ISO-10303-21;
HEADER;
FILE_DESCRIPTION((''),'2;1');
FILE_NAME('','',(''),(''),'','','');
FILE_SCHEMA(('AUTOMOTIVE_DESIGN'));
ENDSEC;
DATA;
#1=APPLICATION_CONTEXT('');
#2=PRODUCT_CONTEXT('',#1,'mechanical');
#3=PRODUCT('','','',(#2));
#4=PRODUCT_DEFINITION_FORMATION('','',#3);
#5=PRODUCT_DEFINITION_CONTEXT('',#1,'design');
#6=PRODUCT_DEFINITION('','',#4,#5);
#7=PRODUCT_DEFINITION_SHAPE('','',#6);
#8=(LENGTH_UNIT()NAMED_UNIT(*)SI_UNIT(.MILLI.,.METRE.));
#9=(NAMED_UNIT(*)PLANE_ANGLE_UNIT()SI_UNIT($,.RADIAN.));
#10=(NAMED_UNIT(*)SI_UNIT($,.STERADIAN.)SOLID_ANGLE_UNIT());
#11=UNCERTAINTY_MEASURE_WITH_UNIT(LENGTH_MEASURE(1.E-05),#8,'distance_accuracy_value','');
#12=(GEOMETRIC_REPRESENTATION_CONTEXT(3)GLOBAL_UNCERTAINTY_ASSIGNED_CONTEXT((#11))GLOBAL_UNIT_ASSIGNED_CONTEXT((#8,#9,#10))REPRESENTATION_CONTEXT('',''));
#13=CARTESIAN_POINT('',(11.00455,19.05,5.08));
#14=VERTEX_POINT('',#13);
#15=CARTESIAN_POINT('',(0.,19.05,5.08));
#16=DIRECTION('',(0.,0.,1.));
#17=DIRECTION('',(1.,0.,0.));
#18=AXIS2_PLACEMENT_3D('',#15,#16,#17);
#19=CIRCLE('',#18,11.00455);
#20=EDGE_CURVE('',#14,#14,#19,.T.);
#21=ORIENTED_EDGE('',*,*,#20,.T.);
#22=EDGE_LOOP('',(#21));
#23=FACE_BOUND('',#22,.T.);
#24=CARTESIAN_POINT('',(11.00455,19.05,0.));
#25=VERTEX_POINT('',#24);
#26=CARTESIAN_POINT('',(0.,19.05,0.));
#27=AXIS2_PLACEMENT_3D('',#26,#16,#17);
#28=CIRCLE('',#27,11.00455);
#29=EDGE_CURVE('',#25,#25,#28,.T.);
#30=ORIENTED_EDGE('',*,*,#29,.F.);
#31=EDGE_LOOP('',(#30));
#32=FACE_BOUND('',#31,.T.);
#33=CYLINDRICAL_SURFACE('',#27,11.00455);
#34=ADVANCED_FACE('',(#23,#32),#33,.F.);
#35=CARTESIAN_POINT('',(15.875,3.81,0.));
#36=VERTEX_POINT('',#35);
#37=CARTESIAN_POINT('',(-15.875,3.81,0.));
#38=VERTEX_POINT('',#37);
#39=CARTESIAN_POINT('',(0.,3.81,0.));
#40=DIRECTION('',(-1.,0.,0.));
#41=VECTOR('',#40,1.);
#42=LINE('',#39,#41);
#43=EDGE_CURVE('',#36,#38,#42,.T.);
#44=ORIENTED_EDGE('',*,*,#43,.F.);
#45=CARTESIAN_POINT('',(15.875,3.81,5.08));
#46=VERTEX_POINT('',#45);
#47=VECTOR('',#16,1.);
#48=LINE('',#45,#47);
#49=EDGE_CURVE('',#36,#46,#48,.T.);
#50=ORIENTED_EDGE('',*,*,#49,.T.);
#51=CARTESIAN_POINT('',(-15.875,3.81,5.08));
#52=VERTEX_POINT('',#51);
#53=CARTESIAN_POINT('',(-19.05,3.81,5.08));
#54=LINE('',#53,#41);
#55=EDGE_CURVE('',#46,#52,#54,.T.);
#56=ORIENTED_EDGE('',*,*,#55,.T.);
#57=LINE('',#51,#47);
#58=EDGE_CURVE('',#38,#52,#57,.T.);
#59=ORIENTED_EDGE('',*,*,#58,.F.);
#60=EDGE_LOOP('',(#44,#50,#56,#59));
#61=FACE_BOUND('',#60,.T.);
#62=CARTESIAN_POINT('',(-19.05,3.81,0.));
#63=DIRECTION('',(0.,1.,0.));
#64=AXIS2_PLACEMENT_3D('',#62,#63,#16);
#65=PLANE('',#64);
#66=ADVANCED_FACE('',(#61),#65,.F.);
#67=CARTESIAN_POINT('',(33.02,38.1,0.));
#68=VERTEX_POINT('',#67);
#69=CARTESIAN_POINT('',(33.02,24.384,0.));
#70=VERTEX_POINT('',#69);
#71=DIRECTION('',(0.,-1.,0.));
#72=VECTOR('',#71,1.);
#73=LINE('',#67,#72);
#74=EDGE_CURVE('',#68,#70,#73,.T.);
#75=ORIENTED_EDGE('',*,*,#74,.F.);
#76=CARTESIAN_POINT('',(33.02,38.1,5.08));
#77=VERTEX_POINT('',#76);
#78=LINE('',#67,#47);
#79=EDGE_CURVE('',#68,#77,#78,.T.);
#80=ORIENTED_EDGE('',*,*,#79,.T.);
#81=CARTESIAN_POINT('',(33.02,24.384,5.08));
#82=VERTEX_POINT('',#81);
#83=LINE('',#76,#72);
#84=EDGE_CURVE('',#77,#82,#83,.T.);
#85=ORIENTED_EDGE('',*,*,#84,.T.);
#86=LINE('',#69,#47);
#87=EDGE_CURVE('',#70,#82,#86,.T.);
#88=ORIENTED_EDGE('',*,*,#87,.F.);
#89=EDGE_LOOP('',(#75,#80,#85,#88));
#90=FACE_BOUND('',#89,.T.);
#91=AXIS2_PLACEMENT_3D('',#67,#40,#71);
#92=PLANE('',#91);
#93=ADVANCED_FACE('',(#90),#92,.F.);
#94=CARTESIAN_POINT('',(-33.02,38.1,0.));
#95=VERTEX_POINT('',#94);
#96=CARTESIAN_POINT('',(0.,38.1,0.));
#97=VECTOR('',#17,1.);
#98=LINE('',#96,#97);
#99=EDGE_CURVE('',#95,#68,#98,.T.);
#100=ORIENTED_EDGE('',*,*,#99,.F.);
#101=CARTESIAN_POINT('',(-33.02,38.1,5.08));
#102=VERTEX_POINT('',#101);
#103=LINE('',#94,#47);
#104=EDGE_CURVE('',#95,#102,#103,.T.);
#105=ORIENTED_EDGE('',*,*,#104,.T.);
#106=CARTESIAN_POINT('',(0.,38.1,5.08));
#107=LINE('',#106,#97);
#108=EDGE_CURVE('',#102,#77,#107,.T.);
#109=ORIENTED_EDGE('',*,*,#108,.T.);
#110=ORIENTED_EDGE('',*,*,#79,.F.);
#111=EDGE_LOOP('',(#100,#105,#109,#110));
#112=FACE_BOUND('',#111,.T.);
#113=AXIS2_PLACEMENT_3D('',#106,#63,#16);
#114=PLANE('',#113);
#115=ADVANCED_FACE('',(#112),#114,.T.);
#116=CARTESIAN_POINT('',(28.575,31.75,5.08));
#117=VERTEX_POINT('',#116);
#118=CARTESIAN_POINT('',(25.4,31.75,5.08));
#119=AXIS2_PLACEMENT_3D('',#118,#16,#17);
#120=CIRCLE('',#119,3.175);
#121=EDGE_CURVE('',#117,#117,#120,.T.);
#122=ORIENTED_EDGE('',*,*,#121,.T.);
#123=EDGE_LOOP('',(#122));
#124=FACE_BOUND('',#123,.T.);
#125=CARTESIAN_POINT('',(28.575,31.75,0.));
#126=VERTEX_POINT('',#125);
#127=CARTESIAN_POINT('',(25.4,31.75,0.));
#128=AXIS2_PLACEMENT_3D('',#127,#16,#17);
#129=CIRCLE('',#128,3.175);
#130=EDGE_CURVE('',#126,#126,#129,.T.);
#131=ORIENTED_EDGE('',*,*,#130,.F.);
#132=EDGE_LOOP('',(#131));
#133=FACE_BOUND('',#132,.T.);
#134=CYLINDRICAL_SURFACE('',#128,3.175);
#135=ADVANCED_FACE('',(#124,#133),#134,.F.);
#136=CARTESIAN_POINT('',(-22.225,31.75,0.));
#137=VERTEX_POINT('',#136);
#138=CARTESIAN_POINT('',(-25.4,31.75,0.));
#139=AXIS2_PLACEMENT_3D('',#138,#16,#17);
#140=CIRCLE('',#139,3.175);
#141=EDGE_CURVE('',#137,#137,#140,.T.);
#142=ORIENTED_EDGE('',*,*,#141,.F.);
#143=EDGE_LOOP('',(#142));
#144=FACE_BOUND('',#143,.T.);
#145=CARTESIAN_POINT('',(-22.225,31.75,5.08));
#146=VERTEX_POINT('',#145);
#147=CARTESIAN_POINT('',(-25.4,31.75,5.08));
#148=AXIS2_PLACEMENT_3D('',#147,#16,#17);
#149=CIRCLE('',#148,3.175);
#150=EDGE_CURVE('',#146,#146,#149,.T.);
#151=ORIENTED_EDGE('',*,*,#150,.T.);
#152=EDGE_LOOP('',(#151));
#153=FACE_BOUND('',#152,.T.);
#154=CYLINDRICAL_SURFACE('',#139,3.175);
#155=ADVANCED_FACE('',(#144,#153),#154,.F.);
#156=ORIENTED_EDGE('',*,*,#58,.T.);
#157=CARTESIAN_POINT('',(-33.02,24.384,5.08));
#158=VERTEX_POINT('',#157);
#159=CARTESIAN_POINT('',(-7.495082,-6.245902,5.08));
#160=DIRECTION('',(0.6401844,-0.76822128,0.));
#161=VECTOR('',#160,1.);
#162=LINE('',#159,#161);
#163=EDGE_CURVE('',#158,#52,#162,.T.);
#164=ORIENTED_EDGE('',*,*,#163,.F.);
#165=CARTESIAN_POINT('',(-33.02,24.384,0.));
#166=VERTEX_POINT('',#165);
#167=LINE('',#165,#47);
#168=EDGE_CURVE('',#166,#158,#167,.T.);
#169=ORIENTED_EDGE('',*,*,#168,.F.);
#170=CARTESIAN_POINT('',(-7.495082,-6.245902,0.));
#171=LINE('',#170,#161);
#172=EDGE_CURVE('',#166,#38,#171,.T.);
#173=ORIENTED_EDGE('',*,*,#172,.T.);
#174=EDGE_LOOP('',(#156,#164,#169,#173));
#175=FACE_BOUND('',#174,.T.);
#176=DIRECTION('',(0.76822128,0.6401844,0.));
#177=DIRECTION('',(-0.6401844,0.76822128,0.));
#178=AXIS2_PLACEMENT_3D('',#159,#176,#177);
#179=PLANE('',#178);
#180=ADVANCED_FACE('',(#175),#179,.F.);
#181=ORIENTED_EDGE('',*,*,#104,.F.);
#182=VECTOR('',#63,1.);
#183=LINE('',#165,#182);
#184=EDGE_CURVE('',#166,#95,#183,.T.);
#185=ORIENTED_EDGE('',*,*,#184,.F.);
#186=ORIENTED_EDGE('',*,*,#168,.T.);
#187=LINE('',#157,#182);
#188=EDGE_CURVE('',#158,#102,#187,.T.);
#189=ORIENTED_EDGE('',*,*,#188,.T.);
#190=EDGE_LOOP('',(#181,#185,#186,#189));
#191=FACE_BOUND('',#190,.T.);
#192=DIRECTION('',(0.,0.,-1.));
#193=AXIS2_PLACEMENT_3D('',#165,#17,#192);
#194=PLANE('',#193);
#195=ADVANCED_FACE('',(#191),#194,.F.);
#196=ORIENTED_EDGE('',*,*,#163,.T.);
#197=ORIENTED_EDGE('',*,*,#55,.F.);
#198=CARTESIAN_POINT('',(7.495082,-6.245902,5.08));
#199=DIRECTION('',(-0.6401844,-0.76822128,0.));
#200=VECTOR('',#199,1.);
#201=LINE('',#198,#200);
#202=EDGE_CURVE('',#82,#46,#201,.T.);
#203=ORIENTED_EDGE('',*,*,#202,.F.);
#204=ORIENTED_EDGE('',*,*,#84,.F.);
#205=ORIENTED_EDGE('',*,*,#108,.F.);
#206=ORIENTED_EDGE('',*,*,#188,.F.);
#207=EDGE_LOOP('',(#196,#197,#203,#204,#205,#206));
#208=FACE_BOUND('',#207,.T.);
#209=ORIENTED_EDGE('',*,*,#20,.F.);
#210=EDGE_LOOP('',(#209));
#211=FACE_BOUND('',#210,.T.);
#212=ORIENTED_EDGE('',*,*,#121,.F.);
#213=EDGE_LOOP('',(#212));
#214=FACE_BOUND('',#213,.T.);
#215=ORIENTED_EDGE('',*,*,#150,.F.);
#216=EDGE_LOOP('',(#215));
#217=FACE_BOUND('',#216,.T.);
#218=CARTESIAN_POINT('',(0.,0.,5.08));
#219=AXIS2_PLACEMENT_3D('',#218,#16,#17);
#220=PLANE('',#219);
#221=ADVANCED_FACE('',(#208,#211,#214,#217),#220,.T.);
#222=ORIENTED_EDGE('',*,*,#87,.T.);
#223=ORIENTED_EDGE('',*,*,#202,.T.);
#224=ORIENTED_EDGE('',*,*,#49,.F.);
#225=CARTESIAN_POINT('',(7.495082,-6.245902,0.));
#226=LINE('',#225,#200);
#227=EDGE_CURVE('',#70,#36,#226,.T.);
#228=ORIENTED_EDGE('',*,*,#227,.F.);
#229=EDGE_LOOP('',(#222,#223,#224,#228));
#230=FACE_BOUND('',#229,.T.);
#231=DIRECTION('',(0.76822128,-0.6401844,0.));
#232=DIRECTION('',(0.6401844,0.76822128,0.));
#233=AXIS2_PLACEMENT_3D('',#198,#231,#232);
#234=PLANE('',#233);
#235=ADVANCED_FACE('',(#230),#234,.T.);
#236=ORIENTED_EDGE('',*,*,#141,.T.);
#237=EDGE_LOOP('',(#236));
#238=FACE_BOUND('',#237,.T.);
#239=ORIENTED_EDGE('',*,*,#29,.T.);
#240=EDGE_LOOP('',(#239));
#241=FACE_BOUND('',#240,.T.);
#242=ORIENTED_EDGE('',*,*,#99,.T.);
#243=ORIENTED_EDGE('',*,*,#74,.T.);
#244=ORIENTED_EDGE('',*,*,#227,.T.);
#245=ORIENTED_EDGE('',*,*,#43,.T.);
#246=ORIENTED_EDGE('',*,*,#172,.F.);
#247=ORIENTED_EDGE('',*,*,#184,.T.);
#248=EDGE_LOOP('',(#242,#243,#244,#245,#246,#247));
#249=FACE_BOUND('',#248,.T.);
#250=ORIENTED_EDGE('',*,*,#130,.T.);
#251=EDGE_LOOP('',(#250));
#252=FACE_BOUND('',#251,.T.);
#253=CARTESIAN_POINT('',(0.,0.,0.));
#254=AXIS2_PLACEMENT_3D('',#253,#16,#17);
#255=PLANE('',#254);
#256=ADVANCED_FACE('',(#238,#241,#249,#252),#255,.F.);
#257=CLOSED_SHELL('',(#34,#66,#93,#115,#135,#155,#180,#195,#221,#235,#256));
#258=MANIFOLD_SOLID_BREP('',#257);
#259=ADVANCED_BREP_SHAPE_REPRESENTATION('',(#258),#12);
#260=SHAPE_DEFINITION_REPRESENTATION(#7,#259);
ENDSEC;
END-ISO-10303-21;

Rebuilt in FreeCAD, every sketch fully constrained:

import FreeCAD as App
import Part
import Sketcher

V = App.Vector
Q = App.Units.Quantity


def add_polygon(sketch, points):
    """Adds a closed chain of lines whose ends are joined by coincident constraints."""
    first, n = sketch.GeometryCount, len(points)
    for a, b in zip(points, points[1:] + points[:1]):
        sketch.addGeometry(Part.LineSegment(App.Vector(*a, 0), App.Vector(*b, 0)), False)
    for i in range(n):
        sketch.addConstraint(Sketcher.Constraint("Coincident", first + i, 2, first + (i + 1) % n, 1))

doc = App.newDocument("Part")
body = doc.addObject("PartDesign::Body", "Body")

sketch1 = body.newObject("Sketcher::SketchObject", "Sketch")
sketch1.AttachmentSupport = (doc.getObject("XY_Plane"), [""])
sketch1.MapMode = "FlatFace"
add_polygon(sketch1, [(44.45, 38.1), (-44.45, 38.1), (-12.7, 0), (12.7, 0)])
sketch1.addConstraint([
    Sketcher.Constraint("Horizontal", 0),
    Sketcher.Constraint("Horizontal", 2),
    Sketcher.Constraint("Symmetric", 1, 2, 2, 2, -1, 1),
    Sketcher.Constraint("Equal", 1, 3),
    Sketcher.Constraint("DistanceX", 2, 1, 2, 2, Q("1 in")),
    Sketcher.Constraint("DistanceX", 0, 2, 0, 1, Q("3.5 in")),
    Sketcher.Constraint("DistanceY", -1, 1, 0, 2, Q("1.5 in")),
])
pad1 = body.newObject("PartDesign::Pad", "Pad")
pad1.Profile = sketch1
pad1.Length = Q("0.2 in")

sketch2 = body.newObject("Sketcher::SketchObject", "Sketch001")
sketch2.AttachmentSupport = (doc.getObject("XY_Plane"), [""])
sketch2.MapMode = "FlatFace"
sketch2.AttachmentOffset = App.Placement(V(0, 0, 0.2 * 25.4), App.Rotation())
sketch2.addGeometry(Part.Circle(V(0, 19.05, 0), V(0, 0, 1), 11.00455), False)
sketch2.addGeometry(Part.Circle(V(-25.4, 31.75, 0), V(0, 0, 1), 3.175), False)
sketch2.addGeometry(Part.Circle(V(25.4, 31.75, 0), V(0, 0, 1), 3.175), False)
add_polygon(sketch2, [(-33.02, 24.384), (-33.02, 38.1), (-44.45, 38.1)])
add_polygon(sketch2, [(33.02, 38.1), (33.02, 24.384), (44.45, 38.1)])
sketch2.addConstraint([
    Sketcher.Constraint("Vertical", 3),
    Sketcher.Constraint("Horizontal", 4),
    Sketcher.Constraint("Vertical", 6),
    Sketcher.Constraint("Horizontal", 8),
    Sketcher.Constraint("Equal", 1, 2),
    Sketcher.Constraint("Symmetric", 1, 3, 2, 3, -2),
    Sketcher.Constraint("Symmetric", 5, 2, 6, 2, -2),
    Sketcher.Constraint("Symmetric", 4, 2, 7, 2, -2),
    Sketcher.Constraint("PointOnObject", 0, 3, -2),
    Sketcher.Constraint("Diameter", 1, Q("0.25 in")),
    Sketcher.Constraint("DistanceX", 1, 3, -1, 1, Q("1 in")),
    Sketcher.Constraint("Diameter", 0, Q("0.8665 in")),
    Sketcher.Constraint("DistanceX", 4, 2, 4, 1, Q("0.45 in")),
    Sketcher.Constraint("DistanceY", 3, 1, 3, 2, Q("0.54 in")),
    Sketcher.Constraint("DistanceX", 3, 2, -1, 1, Q("1.3 in")),
    Sketcher.Constraint("DistanceY", -1, 1, 3, 2, Q("1.5 in")),
    Sketcher.Constraint("DistanceY", 0, 3, 1, 3, Q("0.5 in")),
    Sketcher.Constraint("DistanceY", -1, 1, 0, 3, Q("0.75 in")),
])
pocket1 = body.newObject("PartDesign::Pocket", "Pocket")
pocket1.Profile = sketch2
pocket1.Length = Q("0.2 in")

sketch3 = body.newObject("Sketcher::SketchObject", "Sketch002")
sketch3.AttachmentSupport = (doc.getObject("XY_Plane"), [""])
sketch3.MapMode = "FlatFace"
sketch3.AttachmentOffset = App.Placement(V(0, 0, 0.2 * 25.4), App.Rotation())
add_polygon(sketch3, [(-19.05, 3.81), (-19.05, 0), (19.05, 0), (19.05, 3.81)])
sketch3.addConstraint([
    Sketcher.Constraint("Vertical", 0),
    Sketcher.Constraint("Horizontal", 1),
    Sketcher.Constraint("Vertical", 2),
    Sketcher.Constraint("Horizontal", 3),
    Sketcher.Constraint("Symmetric", 0, 2, 1, 2, -1, 1),
    Sketcher.Constraint("DistanceX", 1, 1, 1, 2, Q("1.5 in")),
    Sketcher.Constraint("DistanceY", 0, 2, 0, 1, Q("0.15 in")),
])
pocket2 = body.newObject("PartDesign::Pocket", "Pocket001")
pocket2.Profile = sketch3
pocket2.Type = "ThroughAll"

doc.recompute()
